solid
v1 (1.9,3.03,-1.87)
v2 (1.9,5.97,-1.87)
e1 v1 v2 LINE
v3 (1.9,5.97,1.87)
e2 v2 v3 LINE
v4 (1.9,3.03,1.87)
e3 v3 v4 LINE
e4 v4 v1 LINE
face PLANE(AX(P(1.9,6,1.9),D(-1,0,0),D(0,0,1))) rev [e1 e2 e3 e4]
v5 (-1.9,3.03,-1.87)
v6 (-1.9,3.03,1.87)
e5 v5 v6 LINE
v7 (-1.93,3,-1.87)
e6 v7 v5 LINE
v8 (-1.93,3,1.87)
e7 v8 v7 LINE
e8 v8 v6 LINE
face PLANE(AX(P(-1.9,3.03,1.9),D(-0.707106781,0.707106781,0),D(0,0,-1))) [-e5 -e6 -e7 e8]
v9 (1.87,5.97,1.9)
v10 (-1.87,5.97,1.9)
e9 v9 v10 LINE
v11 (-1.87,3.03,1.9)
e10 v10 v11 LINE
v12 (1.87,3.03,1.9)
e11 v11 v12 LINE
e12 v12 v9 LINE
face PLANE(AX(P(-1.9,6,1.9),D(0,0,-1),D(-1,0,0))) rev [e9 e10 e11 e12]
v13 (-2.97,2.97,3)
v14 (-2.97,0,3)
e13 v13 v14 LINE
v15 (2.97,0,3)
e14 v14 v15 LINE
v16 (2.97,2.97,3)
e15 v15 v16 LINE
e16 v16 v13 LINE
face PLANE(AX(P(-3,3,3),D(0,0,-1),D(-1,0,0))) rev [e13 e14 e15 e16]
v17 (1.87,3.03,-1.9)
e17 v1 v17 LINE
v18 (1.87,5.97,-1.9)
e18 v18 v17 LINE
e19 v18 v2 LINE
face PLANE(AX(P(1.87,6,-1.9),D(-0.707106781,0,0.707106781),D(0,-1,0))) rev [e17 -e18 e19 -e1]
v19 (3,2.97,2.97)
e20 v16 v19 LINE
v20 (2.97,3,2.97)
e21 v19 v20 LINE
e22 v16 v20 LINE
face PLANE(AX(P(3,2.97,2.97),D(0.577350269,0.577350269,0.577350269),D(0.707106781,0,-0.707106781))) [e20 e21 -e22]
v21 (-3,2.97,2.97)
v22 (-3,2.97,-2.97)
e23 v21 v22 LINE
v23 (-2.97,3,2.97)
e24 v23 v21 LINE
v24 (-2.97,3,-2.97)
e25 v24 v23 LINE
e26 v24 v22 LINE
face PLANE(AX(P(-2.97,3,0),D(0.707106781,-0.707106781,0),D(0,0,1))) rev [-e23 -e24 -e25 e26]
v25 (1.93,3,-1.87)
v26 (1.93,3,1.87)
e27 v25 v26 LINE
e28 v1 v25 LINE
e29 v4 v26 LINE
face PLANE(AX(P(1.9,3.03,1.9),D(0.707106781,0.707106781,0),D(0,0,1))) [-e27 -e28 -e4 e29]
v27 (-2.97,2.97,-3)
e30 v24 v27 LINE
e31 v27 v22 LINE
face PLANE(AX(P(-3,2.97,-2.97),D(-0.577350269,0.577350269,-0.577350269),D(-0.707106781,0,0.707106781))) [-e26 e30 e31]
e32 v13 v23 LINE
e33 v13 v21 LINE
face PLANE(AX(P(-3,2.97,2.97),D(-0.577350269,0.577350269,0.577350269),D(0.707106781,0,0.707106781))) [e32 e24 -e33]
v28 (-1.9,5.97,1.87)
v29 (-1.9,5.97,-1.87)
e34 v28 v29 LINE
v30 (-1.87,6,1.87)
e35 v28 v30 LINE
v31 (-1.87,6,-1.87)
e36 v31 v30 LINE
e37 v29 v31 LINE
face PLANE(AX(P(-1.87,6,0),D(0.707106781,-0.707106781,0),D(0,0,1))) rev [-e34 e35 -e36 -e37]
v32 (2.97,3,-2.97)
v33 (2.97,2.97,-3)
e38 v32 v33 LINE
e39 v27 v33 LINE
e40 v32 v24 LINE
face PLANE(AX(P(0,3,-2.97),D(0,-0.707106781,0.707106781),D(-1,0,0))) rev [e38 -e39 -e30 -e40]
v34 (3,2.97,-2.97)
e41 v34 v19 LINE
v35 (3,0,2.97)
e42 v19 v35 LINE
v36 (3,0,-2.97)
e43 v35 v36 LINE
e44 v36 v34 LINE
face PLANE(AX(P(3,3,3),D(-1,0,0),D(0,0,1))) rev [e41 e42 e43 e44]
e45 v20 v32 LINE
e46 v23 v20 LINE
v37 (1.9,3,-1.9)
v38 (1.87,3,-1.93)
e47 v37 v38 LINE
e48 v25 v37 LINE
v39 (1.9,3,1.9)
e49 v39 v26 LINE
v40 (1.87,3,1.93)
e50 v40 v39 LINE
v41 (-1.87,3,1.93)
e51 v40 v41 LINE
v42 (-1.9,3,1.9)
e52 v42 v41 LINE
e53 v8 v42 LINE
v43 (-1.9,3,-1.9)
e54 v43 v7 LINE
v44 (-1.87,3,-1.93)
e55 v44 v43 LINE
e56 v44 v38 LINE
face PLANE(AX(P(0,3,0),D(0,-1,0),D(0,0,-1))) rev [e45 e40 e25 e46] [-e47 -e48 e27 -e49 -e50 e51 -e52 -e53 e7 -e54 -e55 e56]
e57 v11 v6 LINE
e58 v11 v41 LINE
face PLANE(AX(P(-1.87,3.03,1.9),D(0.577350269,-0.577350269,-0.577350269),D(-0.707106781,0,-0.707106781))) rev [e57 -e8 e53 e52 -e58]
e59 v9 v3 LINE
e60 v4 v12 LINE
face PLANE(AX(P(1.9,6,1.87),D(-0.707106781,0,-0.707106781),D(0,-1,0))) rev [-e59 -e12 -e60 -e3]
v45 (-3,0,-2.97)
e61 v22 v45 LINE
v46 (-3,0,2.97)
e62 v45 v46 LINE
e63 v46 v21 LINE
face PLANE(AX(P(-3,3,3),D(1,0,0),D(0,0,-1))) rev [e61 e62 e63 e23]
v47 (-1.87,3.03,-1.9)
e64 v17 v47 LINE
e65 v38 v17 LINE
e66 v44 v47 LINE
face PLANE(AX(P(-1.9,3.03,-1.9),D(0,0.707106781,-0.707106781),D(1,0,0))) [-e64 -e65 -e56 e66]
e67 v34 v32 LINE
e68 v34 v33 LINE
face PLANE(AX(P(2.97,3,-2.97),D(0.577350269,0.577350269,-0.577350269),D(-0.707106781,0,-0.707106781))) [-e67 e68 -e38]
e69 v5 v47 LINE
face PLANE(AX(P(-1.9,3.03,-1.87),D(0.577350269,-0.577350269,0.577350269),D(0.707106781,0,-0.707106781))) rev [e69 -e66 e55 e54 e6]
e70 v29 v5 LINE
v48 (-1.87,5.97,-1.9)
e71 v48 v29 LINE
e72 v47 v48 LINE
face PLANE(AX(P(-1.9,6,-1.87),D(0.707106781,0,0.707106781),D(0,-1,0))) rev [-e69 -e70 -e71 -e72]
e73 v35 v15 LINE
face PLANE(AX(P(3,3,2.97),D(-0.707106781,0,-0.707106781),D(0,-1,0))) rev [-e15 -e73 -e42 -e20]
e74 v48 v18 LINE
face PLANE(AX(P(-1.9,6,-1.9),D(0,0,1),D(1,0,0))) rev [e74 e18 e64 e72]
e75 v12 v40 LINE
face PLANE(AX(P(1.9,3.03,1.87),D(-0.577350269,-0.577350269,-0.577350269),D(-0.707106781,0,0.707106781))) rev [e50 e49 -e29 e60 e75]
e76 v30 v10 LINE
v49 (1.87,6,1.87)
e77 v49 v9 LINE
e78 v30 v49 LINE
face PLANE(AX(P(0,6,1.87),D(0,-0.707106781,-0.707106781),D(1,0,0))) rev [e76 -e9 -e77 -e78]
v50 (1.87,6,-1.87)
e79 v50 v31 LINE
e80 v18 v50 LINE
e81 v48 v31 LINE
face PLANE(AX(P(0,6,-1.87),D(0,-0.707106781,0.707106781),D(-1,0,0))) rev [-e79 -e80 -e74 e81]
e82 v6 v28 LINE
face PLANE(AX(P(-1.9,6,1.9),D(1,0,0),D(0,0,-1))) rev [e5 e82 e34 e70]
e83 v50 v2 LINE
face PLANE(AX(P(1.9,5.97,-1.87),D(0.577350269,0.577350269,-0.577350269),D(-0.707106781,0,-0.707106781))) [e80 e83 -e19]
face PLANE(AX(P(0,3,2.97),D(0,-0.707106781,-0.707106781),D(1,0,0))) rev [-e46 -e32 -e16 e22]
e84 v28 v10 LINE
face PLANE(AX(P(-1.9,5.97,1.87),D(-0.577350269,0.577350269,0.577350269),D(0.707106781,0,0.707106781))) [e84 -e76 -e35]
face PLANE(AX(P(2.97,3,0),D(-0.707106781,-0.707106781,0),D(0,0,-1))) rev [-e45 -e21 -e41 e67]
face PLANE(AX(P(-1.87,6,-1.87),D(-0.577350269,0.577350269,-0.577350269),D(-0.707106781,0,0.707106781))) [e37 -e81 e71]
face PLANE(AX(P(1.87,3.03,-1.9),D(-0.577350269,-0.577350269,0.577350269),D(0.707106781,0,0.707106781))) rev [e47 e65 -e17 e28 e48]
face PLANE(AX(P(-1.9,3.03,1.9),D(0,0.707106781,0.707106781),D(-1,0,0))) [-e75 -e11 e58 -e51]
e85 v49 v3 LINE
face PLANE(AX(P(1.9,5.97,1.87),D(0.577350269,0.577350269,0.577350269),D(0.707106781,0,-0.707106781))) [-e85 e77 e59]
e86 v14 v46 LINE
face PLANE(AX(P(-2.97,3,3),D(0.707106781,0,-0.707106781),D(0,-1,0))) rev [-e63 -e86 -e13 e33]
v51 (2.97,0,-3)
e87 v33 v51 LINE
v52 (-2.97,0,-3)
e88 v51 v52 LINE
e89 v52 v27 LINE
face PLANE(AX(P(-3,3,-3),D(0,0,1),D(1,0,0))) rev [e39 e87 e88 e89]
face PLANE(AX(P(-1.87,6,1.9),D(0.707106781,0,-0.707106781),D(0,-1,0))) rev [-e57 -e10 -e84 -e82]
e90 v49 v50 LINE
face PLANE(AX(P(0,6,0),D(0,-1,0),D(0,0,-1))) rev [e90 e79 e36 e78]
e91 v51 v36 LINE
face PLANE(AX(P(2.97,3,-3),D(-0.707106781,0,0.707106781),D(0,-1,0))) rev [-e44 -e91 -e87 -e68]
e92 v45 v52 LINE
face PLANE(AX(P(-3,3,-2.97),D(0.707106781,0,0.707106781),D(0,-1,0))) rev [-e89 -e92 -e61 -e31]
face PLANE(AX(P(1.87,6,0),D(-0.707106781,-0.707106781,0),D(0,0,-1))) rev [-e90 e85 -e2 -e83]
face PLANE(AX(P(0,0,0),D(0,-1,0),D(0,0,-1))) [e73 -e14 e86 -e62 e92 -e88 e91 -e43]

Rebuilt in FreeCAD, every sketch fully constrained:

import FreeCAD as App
import Part
import Sketcher
from FreeCAD import Vector
Q = App.Units.Quantity


def edges_at(feature, points):
    """Names of the edges that pass closest to the given points."""
    edges = feature.Shape.Edges
    near = lambda p: min(range(len(edges)), key=lambda i: edges[i].distToShape(Part.Vertex(*p))[0])
    return sorted({f"Edge{near(p) + 1}" for p in points})


def add_polygon(sketch, points):
    """Adds a closed chain of lines whose ends are joined by coincident constraints."""
    first, n = sketch.GeometryCount, len(points)
    for a, b in zip(points, points[1:] + points[:1]):
        sketch.addGeometry(Part.LineSegment(App.Vector(*a, 0), App.Vector(*b, 0)), False)
    for i in range(n):
        sketch.addConstraint(Sketcher.Constraint("Coincident", first + i, 2, first + (i + 1) % n, 1))

doc = App.newDocument("Part")
params = doc.addObject("Spreadsheet::Sheet", "Params")
for row, (alias, value) in enumerate([
    ("sketch1_width", "6 mm"),
    ("pad1_length", "3 mm"),
    ("sketch2_width", "3.8 mm"),
    ("pad2_length", "3 mm"),
    ("chamfer_size", "0.03 mm"),
], start=1):
    params.set(f"A{row}", alias)
    params.set(f"B{row}", "=" + value)
    params.setAlias(f"B{row}", alias)

body = doc.addObject("PartDesign::Body", "Body")

sketch1 = doc.addObject("Sketcher::SketchObject", "Sketch")
body.addObject(sketch1)
sketch1.AttachmentSupport = (doc.XZ_Plane, [""])
sketch1.MapMode = "FlatFace"
add_polygon(sketch1, [(-3, -3), (-3, 3), (3, 3), (3, -3)])
sketch1.addConstraint(Sketcher.Constraint("Vertical", 0))
sketch1.addConstraint(Sketcher.Constraint("Horizontal", 1))
sketch1.addConstraint(Sketcher.Constraint("Vertical", 2))
sketch1.addConstraint(Sketcher.Constraint("Horizontal", 3))
sketch1.addConstraint(Sketcher.Constraint("Symmetric", 0, 2, 2, 2, -1, 1))
sketch1.addConstraint(Sketcher.Constraint("Equal", 3, 0))
sketch1.addConstraint(Sketcher.Constraint("DistanceX", 1, 1, 1, 2, Q("6 mm")))
sketch1.setExpression("Constraints[10]", "Params.sketch1_width")
pad1 = doc.addObject("PartDesign::Pad", "Pad")
body.addObject(pad1)
pad1.Profile = sketch1
pad1.setExpression("Length", "Params.pad1_length")
pad1.Reversed = True

sketch2 = doc.addObject("Sketcher::SketchObject", "Sketch001")
body.addObject(sketch2)
sketch2.AttachmentSupport = (doc.XZ_Plane, [""])
sketch2.MapMode = "FlatFace"
sketch2.AttachmentOffset = App.Placement(Vector(0, 0, -3), App.Rotation())
add_polygon(sketch2, [(-1.9, -1.9), (-1.9, 1.9), (1.9, 1.9), (1.9, -1.9)])
sketch2.addConstraint(Sketcher.Constraint("Vertical", 0))
sketch2.addConstraint(Sketcher.Constraint("Horizontal", 1))
sketch2.addConstraint(Sketcher.Constraint("Vertical", 2))
sketch2.addConstraint(Sketcher.Constraint("Horizontal", 3))
sketch2.addConstraint(Sketcher.Constraint("Symmetric", 0, 2, 2, 2, -1, 1))
sketch2.addConstraint(Sketcher.Constraint("Equal", 3, 0))
sketch2.addConstraint(Sketcher.Constraint("DistanceX", 1, 1, 1, 2, Q("3.8 mm")))
sketch2.setExpression("Constraints[10]", "Params.sketch2_width")
pad2 = doc.addObject("PartDesign::Pad", "Pad001")
body.addObject(pad2)
pad2.Profile = sketch2
pad2.setExpression("Length", "Params.pad2_length")
pad2.Reversed = True
doc.recompute()

chamfer = doc.addObject("PartDesign::Chamfer", "Chamfer")
body.addObject(chamfer)
chamfer.Base = (pad2, edges_at(pad2, [
    (-3, 3, 0),
    (1.9, 3, 0),
    (1.9, 4.5, 1.9),
    (0, 3, 3),
    (0, 3, -1.9),
    (1.9, 4.5, -1.9),
    (-1.9, 3, 0),
    (-1.9, 4.5, -1.9),
    (0, 3, 1.9),
    (-1.9, 4.5, 1.9),
    (1.9, 6, 0),
    (0, 6, -1.9),
    (-1.9, 6, 0),
    (0, 6, 1.9),
    (3, 3, 0),
    (3, 1.5, 3),
    (-3, 1.5, 3),
    (-3, 1.5, -3),
    (3, 1.5, -3),
    (0, 3, -3),
]))
chamfer.setExpression("Size", "Params.chamfer_size")

doc.recompute()
